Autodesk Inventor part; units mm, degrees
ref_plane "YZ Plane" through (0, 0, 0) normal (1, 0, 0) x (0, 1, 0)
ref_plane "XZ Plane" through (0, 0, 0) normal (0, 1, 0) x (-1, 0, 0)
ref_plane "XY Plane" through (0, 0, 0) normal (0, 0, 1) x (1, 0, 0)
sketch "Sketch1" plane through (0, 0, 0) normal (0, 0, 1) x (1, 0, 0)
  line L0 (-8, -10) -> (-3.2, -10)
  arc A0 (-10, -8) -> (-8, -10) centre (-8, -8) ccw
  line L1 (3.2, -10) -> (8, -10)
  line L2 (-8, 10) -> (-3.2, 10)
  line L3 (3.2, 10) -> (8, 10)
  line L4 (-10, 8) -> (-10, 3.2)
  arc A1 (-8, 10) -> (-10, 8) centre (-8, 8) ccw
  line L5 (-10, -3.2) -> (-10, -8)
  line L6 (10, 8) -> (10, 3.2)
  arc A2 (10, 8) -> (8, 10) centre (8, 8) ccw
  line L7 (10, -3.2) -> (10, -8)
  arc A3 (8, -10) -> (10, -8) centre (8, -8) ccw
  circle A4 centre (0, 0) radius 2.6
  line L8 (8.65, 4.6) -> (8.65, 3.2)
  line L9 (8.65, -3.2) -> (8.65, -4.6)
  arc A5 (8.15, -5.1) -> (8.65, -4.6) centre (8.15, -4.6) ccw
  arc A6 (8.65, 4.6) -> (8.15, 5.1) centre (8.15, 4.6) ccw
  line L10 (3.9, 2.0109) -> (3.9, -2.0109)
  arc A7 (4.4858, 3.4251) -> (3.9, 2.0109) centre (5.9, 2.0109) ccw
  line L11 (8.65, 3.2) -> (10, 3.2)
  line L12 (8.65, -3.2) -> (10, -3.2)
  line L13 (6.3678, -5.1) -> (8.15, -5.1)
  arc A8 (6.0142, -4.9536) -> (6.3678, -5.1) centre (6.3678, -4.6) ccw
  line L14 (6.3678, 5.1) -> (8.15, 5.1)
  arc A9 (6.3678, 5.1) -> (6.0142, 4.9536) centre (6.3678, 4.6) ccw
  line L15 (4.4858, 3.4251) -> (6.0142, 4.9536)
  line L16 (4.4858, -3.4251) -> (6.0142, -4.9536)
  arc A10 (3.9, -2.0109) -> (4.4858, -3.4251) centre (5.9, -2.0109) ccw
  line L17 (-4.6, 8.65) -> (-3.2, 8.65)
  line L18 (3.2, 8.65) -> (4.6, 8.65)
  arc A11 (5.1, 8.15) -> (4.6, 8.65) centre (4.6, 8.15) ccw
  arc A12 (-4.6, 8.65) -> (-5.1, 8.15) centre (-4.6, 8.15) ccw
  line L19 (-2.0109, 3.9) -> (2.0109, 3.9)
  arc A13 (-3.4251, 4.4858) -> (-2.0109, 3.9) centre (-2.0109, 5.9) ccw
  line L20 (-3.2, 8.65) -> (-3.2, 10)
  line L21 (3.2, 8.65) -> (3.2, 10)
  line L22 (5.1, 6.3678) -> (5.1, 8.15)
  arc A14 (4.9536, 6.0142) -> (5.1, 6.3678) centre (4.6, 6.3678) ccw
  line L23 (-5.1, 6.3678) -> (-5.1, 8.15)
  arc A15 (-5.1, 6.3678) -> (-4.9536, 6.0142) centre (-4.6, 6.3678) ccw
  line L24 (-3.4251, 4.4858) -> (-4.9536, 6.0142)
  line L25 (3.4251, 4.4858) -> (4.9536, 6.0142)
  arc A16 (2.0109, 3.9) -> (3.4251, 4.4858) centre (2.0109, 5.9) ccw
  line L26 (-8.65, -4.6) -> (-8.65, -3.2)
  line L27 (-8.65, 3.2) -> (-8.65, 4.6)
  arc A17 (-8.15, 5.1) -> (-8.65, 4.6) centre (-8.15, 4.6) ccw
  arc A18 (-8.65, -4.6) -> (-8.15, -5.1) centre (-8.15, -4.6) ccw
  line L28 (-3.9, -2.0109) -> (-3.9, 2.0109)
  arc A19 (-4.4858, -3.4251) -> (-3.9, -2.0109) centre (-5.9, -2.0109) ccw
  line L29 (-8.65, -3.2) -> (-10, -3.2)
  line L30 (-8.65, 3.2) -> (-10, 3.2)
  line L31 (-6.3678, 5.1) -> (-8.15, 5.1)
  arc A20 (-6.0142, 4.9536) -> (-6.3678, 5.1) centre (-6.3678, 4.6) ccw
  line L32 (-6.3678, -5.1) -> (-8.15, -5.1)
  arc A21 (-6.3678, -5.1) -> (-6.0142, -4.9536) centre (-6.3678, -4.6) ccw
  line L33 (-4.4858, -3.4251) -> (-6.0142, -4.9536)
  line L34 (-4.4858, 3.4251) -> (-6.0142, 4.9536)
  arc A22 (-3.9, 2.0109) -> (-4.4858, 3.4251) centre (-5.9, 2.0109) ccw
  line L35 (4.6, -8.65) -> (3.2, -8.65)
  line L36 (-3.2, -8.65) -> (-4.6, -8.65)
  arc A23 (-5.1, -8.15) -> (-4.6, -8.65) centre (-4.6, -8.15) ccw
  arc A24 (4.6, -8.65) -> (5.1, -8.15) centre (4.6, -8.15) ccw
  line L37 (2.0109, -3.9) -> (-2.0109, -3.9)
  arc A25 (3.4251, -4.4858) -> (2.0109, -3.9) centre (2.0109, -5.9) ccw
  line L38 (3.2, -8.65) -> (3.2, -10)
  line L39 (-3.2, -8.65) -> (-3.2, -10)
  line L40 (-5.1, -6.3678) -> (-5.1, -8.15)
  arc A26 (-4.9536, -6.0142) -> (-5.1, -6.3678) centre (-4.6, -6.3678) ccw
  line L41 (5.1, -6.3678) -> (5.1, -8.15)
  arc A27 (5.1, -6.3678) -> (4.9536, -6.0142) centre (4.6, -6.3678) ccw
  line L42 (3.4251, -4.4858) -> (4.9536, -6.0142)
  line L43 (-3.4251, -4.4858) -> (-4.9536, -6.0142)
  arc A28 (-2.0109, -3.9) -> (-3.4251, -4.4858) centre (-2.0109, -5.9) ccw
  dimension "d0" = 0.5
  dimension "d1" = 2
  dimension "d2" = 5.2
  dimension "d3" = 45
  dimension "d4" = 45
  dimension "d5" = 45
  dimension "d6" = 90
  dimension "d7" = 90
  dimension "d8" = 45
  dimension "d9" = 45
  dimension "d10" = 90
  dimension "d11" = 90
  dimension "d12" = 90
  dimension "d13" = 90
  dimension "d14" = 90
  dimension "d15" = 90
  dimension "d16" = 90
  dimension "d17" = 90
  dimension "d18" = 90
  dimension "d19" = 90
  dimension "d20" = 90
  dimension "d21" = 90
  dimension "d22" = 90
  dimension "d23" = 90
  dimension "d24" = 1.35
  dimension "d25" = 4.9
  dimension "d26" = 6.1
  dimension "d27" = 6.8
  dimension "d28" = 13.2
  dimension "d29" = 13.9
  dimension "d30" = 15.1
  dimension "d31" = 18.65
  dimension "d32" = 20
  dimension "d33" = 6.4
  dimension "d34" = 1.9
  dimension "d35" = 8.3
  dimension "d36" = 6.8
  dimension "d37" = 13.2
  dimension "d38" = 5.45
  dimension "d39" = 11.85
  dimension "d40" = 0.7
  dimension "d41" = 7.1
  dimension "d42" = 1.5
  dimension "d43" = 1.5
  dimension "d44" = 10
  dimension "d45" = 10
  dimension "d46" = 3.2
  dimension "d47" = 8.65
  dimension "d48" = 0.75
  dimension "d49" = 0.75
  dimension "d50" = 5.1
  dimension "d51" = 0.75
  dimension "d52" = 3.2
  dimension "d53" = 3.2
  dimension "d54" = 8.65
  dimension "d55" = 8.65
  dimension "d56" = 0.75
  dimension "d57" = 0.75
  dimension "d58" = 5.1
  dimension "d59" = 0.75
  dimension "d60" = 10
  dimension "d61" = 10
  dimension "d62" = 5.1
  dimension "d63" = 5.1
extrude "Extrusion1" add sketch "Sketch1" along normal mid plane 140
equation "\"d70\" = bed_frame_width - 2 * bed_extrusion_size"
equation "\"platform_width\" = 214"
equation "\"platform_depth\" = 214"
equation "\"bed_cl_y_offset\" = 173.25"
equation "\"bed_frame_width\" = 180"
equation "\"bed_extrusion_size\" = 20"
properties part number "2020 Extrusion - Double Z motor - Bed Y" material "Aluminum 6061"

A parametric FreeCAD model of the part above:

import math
import FreeCAD as App
import Part
import Sketcher
from FreeCAD import Vector

doc = App.newDocument("Part")
body = doc.addObject("PartDesign::Body", "Body")

# Sketch on XY plane
sketch1 = body.newObject("Sketcher::SketchObject", "Sketch")
sketch1.AttachmentSupport = (doc.getObject("XY_Plane"), [""])
sketch1.MapMode = "FlatFace"
sketch1.addGeometry([
    Part.ArcOfCircle(Part.Circle(Vector(-8, -8, 0), Vector(0, 0, 1), 2), math.radians(180), math.radians(270)),  # 0
    Part.LineSegment(Vector(-8, -10, 0), Vector(-3.2, -10, 0)),  # 1
    Part.LineSegment(Vector(-3.2, -10, 0), Vector(-3.2, -8.65, 0)),  # 2
    Part.LineSegment(Vector(-3.2, -8.65, 0), Vector(-4.6, -8.65, 0)),  # 3
    Part.ArcOfCircle(Part.Circle(Vector(-4.6, -8.15, 0), Vector(0, 0, 1), 0.5), math.radians(180), math.radians(270)),  # 4
    Part.LineSegment(Vector(-5.1, -8.15, 0), Vector(-5.1, -6.37, 0)),  # 5
    Part.ArcOfCircle(Part.Circle(Vector(-4.6, -6.37, 0), Vector(0, 0, 1), 0.5), math.radians(135), math.radians(180)),  # 6
    Part.LineSegment(Vector(-4.95, -6.01, 0), Vector(-3.43, -4.49, 0)),  # 7
    Part.ArcOfCircle(Part.Circle(Vector(-2.01, -5.9, 0), Vector(0, 0, 1), 2), math.radians(90), math.radians(135)),  # 8
    Part.LineSegment(Vector(-2.01, -3.9, 0), Vector(2.01, -3.9, 0)),  # 9
    Part.ArcOfCircle(Part.Circle(Vector(2.01, -5.9, 0), Vector(0, 0, 1), 2), math.radians(45), math.radians(90)),  # 10
    Part.LineSegment(Vector(3.43, -4.49, 0), Vector(4.95, -6.01, 0)),  # 11
    Part.ArcOfCircle(Part.Circle(Vector(4.6, -6.37, 0), Vector(0, 0, 1), 0.5), math.radians(0), math.radians(45)),  # 12
    Part.LineSegment(Vector(5.1, -6.37, 0), Vector(5.1, -8.15, 0)),  # 13
    Part.ArcOfCircle(Part.Circle(Vector(4.6, -8.15, 0), Vector(0, 0, 1), 0.5), math.radians(-90), math.radians(0)),  # 14
    Part.LineSegment(Vector(4.6, -8.65, 0), Vector(3.2, -8.65, 0)),  # 15
    Part.LineSegment(Vector(3.2, -8.65, 0), Vector(3.2, -10, 0)),  # 16
    Part.LineSegment(Vector(3.2, -10, 0), Vector(8, -10, 0)),  # 17
    Part.ArcOfCircle(Part.Circle(Vector(8, -8, 0), Vector(0, 0, 1), 2), math.radians(-90), math.radians(0)),  # 18
    Part.LineSegment(Vector(10, -8, 0), Vector(10, -3.2, 0)),  # 19
    Part.LineSegment(Vector(10, -3.2, 0), Vector(8.65, -3.2, 0)),  # 20
    Part.LineSegment(Vector(8.65, -3.2, 0), Vector(8.65, -4.6, 0)),  # 21
    Part.ArcOfCircle(Part.Circle(Vector(8.15, -4.6, 0), Vector(0, 0, 1), 0.5), math.radians(-90), math.radians(0)),  # 22
    Part.LineSegment(Vector(8.15, -5.1, 0), Vector(6.37, -5.1, 0)),  # 23
    Part.ArcOfCircle(Part.Circle(Vector(6.37, -4.6, 0), Vector(0, 0, 1), 0.5), math.radians(-135), math.radians(-90)),  # 24
    Part.LineSegment(Vector(6.01, -4.95, 0), Vector(4.49, -3.43, 0)),  # 25
    Part.ArcOfCircle(Part.Circle(Vector(5.9, -2.01, 0), Vector(0, 0, 1), 2), math.radians(180), math.radians(225)),  # 26
    Part.LineSegment(Vector(3.9, -2.01, 0), Vector(3.9, 2.01, 0)),  # 27
    Part.ArcOfCircle(Part.Circle(Vector(5.9, 2.01, 0), Vector(0, 0, 1), 2), math.radians(135), math.radians(180)),  # 28
    Part.LineSegment(Vector(4.49, 3.43, 0), Vector(6.01, 4.95, 0)),  # 29
    Part.ArcOfCircle(Part.Circle(Vector(6.37, 4.6, 0), Vector(0, 0, 1), 0.5), math.radians(90), math.radians(135)),  # 30
    Part.LineSegment(Vector(6.37, 5.1, 0), Vector(8.15, 5.1, 0)),  # 31
    Part.ArcOfCircle(Part.Circle(Vector(8.15, 4.6, 0), Vector(0, 0, 1), 0.5), math.radians(0), math.radians(90)),  # 32
    Part.LineSegment(Vector(8.65, 4.6, 0), Vector(8.65, 3.2, 0)),  # 33
    Part.LineSegment(Vector(8.65, 3.2, 0), Vector(10, 3.2, 0)),  # 34
    Part.LineSegment(Vector(10, 3.2, 0), Vector(10, 8, 0)),  # 35
    Part.ArcOfCircle(Part.Circle(Vector(8, 8, 0), Vector(0, 0, 1), 2), math.radians(0), math.radians(90)),  # 36
    Part.LineSegment(Vector(8, 10, 0), Vector(3.2, 10, 0)),  # 37
    Part.LineSegment(Vector(3.2, 10, 0), Vector(3.2, 8.65, 0)),  # 38
    Part.LineSegment(Vector(3.2, 8.65, 0), Vector(4.6, 8.65, 0)),  # 39
    Part.ArcOfCircle(Part.Circle(Vector(4.6, 8.15, 0), Vector(0, 0, 1), 0.5), math.radians(0), math.radians(90)),  # 40
    Part.LineSegment(Vector(5.1, 8.15, 0), Vector(5.1, 6.37, 0)),  # 41
    Part.ArcOfCircle(Part.Circle(Vector(4.6, 6.37, 0), Vector(0, 0, 1), 0.5), math.radians(-45), math.radians(0)),  # 42
    Part.LineSegment(Vector(4.95, 6.01, 0), Vector(3.43, 4.49, 0)),  # 43
    Part.ArcOfCircle(Part.Circle(Vector(2.01, 5.9, 0), Vector(0, 0, 1), 2), math.radians(-90), math.radians(-45)),  # 44
    Part.LineSegment(Vector(2.01, 3.9, 0), Vector(-2.01, 3.9, 0)),  # 45
    Part.ArcOfCircle(Part.Circle(Vector(-2.01, 5.9, 0), Vector(0, 0, 1), 2), math.radians(-135), math.radians(-90)),  # 46
    Part.LineSegment(Vector(-3.43, 4.49, 0), Vector(-4.95, 6.01, 0)),  # 47
    Part.ArcOfCircle(Part.Circle(Vector(-4.6, 6.37, 0), Vector(0, 0, 1), 0.5), math.radians(180), math.radians(225)),  # 48
    Part.LineSegment(Vector(-5.1, 6.37, 0), Vector(-5.1, 8.15, 0)),  # 49
    Part.ArcOfCircle(Part.Circle(Vector(-4.6, 8.15, 0), Vector(0, 0, 1), 0.5), math.radians(90), math.radians(180)),  # 50
    Part.LineSegment(Vector(-4.6, 8.65, 0), Vector(-3.2, 8.65, 0)),  # 51
    Part.LineSegment(Vector(-3.2, 8.65, 0), Vector(-3.2, 10, 0)),  # 52
    Part.LineSegment(Vector(-3.2, 10, 0), Vector(-8, 10, 0)),  # 53
    Part.ArcOfCircle(Part.Circle(Vector(-8, 8, 0), Vector(0, 0, 1), 2), math.radians(90), math.radians(180)),  # 54
    Part.LineSegment(Vector(-10, 8, 0), Vector(-10, 3.2, 0)),  # 55
    Part.LineSegment(Vector(-10, 3.2, 0), Vector(-8.65, 3.2, 0)),  # 56
    Part.LineSegment(Vector(-8.65, 3.2, 0), Vector(-8.65, 4.6, 0)),  # 57
    Part.ArcOfCircle(Part.Circle(Vector(-8.15, 4.6, 0), Vector(0, 0, 1), 0.5), math.radians(90), math.radians(180)),  # 58
    Part.LineSegment(Vector(-8.15, 5.1, 0), Vector(-6.37, 5.1, 0)),  # 59
    Part.ArcOfCircle(Part.Circle(Vector(-6.37, 4.6, 0), Vector(0, 0, 1), 0.5), math.radians(45), math.radians(90)),  # 60
    Part.LineSegment(Vector(-6.01, 4.95, 0), Vector(-4.49, 3.43, 0)),  # 61
    Part.ArcOfCircle(Part.Circle(Vector(-5.9, 2.01, 0), Vector(0, 0, 1), 2), math.radians(0), math.radians(45)),  # 62
    Part.LineSegment(Vector(-3.9, 2.01, 0), Vector(-3.9, -2.01, 0)),  # 63
    Part.ArcOfCircle(Part.Circle(Vector(-5.9, -2.01, 0), Vector(0, 0, 1), 2), math.radians(-45), math.radians(0)),  # 64
    Part.LineSegment(Vector(-4.49, -3.43, 0), Vector(-6.01, -4.95, 0)),  # 65
    Part.ArcOfCircle(Part.Circle(Vector(-6.37, -4.6, 0), Vector(0, 0, 1), 0.5), math.radians(-90), math.radians(-45)),  # 66
    Part.LineSegment(Vector(-6.37, -5.1, 0), Vector(-8.15, -5.1, 0)),  # 67
    Part.ArcOfCircle(Part.Circle(Vector(-8.15, -4.6, 0), Vector(0, 0, 1), 0.5), math.radians(180), math.radians(270)),  # 68
    Part.LineSegment(Vector(-8.65, -4.6, 0), Vector(-8.65, -3.2, 0)),  # 69
    Part.LineSegment(Vector(-8.65, -3.2, 0), Vector(-10, -3.2, 0)),  # 70
    Part.LineSegment(Vector(-10, -3.2, 0), Vector(-10, -8, 0)),  # 71
    Part.Circle(Vector(0, 0, 0), Vector(0, 0, 1), 2.6),  # 72
], False)
sketch1.addConstraint([
    Sketcher.Constraint("Tangent", 0, 2, 1, 1),
    Sketcher.Constraint("Coincident", 1, 2, 2, 1),
    Sketcher.Constraint("Coincident", 2, 2, 3, 1),
    Sketcher.Constraint("Tangent", 3, 2, 4, 2),
    Sketcher.Constraint("Tangent", 4, 1, 5, 1),
    Sketcher.Constraint("Tangent", 5, 2, 6, 2),
    Sketcher.Constraint("Tangent", 6, 1, 7, 1),
    Sketcher.Constraint("Tangent", 7, 2, 8, 2),
    Sketcher.Constraint("Tangent", 8, 1, 9, 1),
    Sketcher.Constraint("Tangent", 9, 2, 10, 2),
    Sketcher.Constraint("Tangent", 10, 1, 11, 1),
    Sketcher.Constraint("Tangent", 11, 2, 12, 2),
    Sketcher.Constraint("Tangent", 12, 1, 13, 1),
    Sketcher.Constraint("Tangent", 13, 2, 14, 2),
    Sketcher.Constraint("Tangent", 14, 1, 15, 1),
    Sketcher.Constraint("Coincident", 15, 2, 16, 1),
    Sketcher.Constraint("Coincident", 16, 2, 17, 1),
    Sketcher.Constraint("Tangent", 17, 2, 18, 1),
    Sketcher.Constraint("Tangent", 18, 2, 19, 1),
    Sketcher.Constraint("Coincident", 19, 2, 20, 1),
    Sketcher.Constraint("Coincident", 20, 2, 21, 1),
    Sketcher.Constraint("Tangent", 21, 2, 22, 2),
    Sketcher.Constraint("Tangent", 22, 1, 23, 1),
    Sketcher.Constraint("Tangent", 23, 2, 24, 2),
    Sketcher.Constraint("Tangent", 24, 1, 25, 1),
    Sketcher.Constraint("Tangent", 25, 2, 26, 2),
    Sketcher.Constraint("Tangent", 26, 1, 27, 1),
    Sketcher.Constraint("Tangent", 27, 2, 28, 2),
    Sketcher.Constraint("Tangent", 28, 1, 29, 1),
    Sketcher.Constraint("Tangent", 29, 2, 30, 2),
    Sketcher.Constraint("Tangent", 30, 1, 31, 1),
    Sketcher.Constraint("Tangent", 31, 2, 32, 2),
    Sketcher.Constraint("Tangent", 32, 1, 33, 1),
    Sketcher.Constraint("Coincident", 33, 2, 34, 1),
    Sketcher.Constraint("Coincident", 34, 2, 35, 1),
    Sketcher.Constraint("Tangent", 35, 2, 36, 1),
    Sketcher.Constraint("Tangent", 36, 2, 37, 1),
    Sketcher.Constraint("Coincident", 37, 2, 38, 1),
    Sketcher.Constraint("Coincident", 38, 2, 39, 1),
    Sketcher.Constraint("Tangent", 39, 2, 40, 2),
    Sketcher.Constraint("Tangent", 40, 1, 41, 1),
    Sketcher.Constraint("Tangent", 41, 2, 42, 2),
    Sketcher.Constraint("Tangent", 42, 1, 43, 1),
    Sketcher.Constraint("Tangent", 43, 2, 44, 2),
    Sketcher.Constraint("Tangent", 44, 1, 45, 1),
    Sketcher.Constraint("Tangent", 45, 2, 46, 2),
    Sketcher.Constraint("Tangent", 46, 1, 47, 1),
    Sketcher.Constraint("Tangent", 47, 2, 48, 2),
    Sketcher.Constraint("Tangent", 48, 1, 49, 1),
    Sketcher.Constraint("Tangent", 49, 2, 50, 2),
    Sketcher.Constraint("Tangent", 50, 1, 51, 1),
    Sketcher.Constraint("Coincident", 51, 2, 52, 1),
    Sketcher.Constraint("Coincident", 52, 2, 53, 1),
    Sketcher.Constraint("Tangent", 53, 2, 54, 1),
    Sketcher.Constraint("Tangent", 54, 2, 55, 1),
    Sketcher.Constraint("Coincident", 55, 2, 56, 1),
    Sketcher.Constraint("Coincident", 56, 2, 57, 1),
    Sketcher.Constraint("Tangent", 57, 2, 58, 2),
    Sketcher.Constraint("Tangent", 58, 1, 59, 1),
    Sketcher.Constraint("Tangent", 59, 2, 60, 2),
    Sketcher.Constraint("Tangent", 60, 1, 61, 1),
    Sketcher.Constraint("Tangent", 61, 2, 62, 2),
    Sketcher.Constraint("Tangent", 62, 1, 63, 1),
    Sketcher.Constraint("Tangent", 63, 2, 64, 2),
    Sketcher.Constraint("Tangent", 64, 1, 65, 1),
    Sketcher.Constraint("Tangent", 65, 2, 66, 2),
    Sketcher.Constraint("Tangent", 66, 1, 67, 1),
    Sketcher.Constraint("Tangent", 67, 2, 68, 2),
    Sketcher.Constraint("Tangent", 68, 1, 69, 1),
    Sketcher.Constraint("Coincident", 69, 2, 70, 1),
    Sketcher.Constraint("Coincident", 70, 2, 71, 1),
    Sketcher.Constraint("Tangent", 71, 2, 0, 1),
    Sketcher.Constraint("Horizontal", 1),
    Sketcher.Constraint("Vertical", 2),
    Sketcher.Constraint("Horizontal", 3),
    Sketcher.Constraint("Vertical", 5),
    Sketcher.Constraint("Horizontal", 9),
    Sketcher.Constraint("Vertical", 13),
    Sketcher.Constraint("Horizontal", 15),
    Sketcher.Constraint("Vertical", 16),
    Sketcher.Constraint("Horizontal", 17),
    Sketcher.Constraint("Vertical", 19),
    Sketcher.Constraint("Horizontal", 20),
    Sketcher.Constraint("Vertical", 21),
    Sketcher.Constraint("Horizontal", 23),
    Sketcher.Constraint("Vertical", 27),
    Sketcher.Constraint("Horizontal", 31),
    Sketcher.Constraint("Vertical", 33),
    Sketcher.Constraint("Horizontal", 34),
    Sketcher.Constraint("Vertical", 35),
    Sketcher.Constraint("Horizontal", 37),
    Sketcher.Constraint("Vertical", 38),
    Sketcher.Constraint("Horizontal", 39),
    Sketcher.Constraint("Vertical", 41),
    Sketcher.Constraint("Horizontal", 45),
    Sketcher.Constraint("Vertical", 49),
    Sketcher.Constraint("Horizontal", 51),
    Sketcher.Constraint("Vertical", 52),
    Sketcher.Constraint("Horizontal", 53),
    Sketcher.Constraint("Vertical", 55),
    Sketcher.Constraint("Horizontal", 56),
    Sketcher.Constraint("Vertical", 57),
    Sketcher.Constraint("Horizontal", 59),
    Sketcher.Constraint("Vertical", 63),
    Sketcher.Constraint("Horizontal", 67),
    Sketcher.Constraint("Vertical", 69),
    Sketcher.Constraint("Horizontal", 70),
    Sketcher.Constraint("Vertical", 71),
    Sketcher.Constraint("Coincident", 72, 3, -1, 1),
    Sketcher.Constraint("Equal", 4, 6),
    Sketcher.Constraint("Equal", 0, 8),
    Sketcher.Constraint("Equal", 8, 10),
    Sketcher.Constraint("Equal", 6, 12),
    Sketcher.Constraint("Equal", 12, 14),
    Sketcher.Constraint("Equal", 10, 18),
    Sketcher.Constraint("Equal", 14, 22),
    Sketcher.Constraint("Equal", 22, 24),
    Sketcher.Constraint("Equal", 18, 26),
    Sketcher.Constraint("Equal", 26, 28),
    Sketcher.Constraint("Equal", 24, 30),
    Sketcher.Constraint("Equal", 30, 32),
    Sketcher.Constraint("Equal", 28, 36),
    Sketcher.Constraint("Equal", 32, 40),
    Sketcher.Constraint("Equal", 40, 42),
    Sketcher.Constraint("Equal", 36, 44),
    Sketcher.Constraint("Equal", 44, 46),
    Sketcher.Constraint("Equal", 42, 48),
    Sketcher.Constraint("Equal", 48, 50),
    Sketcher.Constraint("Equal", 46, 54),
    Sketcher.Constraint("Equal", 50, 58),
    Sketcher.Constraint("Equal", 58, 60),
    Sketcher.Constraint("Equal", 54, 62),
    Sketcher.Constraint("Equal", 62, 64),
    Sketcher.Constraint("Equal", 60, 66),
    Sketcher.Constraint("Equal", 66, 68),
    Sketcher.Constraint("Symmetric", 0, 3, 36, 3, -1, 1),
    Sketcher.Constraint("Symmetric", 4, 3, 40, 3, -1, 1),
    Sketcher.Constraint("Symmetric", 8, 3, 44, 3, -1, 1),
    Sketcher.Constraint("Symmetric", 12, 3, 48, 3, -1, 1),
    Sketcher.Constraint("Symmetric", 18, 3, 54, 3, -1, 1),
    Sketcher.Constraint("Symmetric", 22, 3, 58, 3, -1, 1),
    Sketcher.Constraint("Symmetric", 26, 3, 62, 3, -1, 1),
    Sketcher.Constraint("Symmetric", 30, 3, 66, 3, -1, 1),
    Sketcher.Constraint("Symmetric", 15, 2, 51, 2, -1, 1),
    Sketcher.Constraint("Symmetric", 33, 2, 69, 2, -1, 1),
    Sketcher.Constraint("Symmetric", 6, 3, 12, 3, -2),
    Sketcher.Constraint("Symmetric", 0, 3, 18, 3, -2),
    Sketcher.Constraint("Symmetric", 32, 3, 58, 3, -2),
    Sketcher.Constraint("Symmetric", 2, 2, 15, 2, -2),
    Sketcher.Constraint("Symmetric", 43, 2, 46, 1, -2),
    Sketcher.Constraint("Symmetric", 29, 2, 60, 1, -2),
    Sketcher.Constraint("Symmetric", 25, 2, 64, 1, -2),
    Sketcher.Constraint("Perpendicular", 7, 11),
    Sketcher.Constraint("Parallel", 11, 25),
    Sketcher.Constraint("Perpendicular", 25, 29),
    Sketcher.Constraint("Horizontal", 34, 2, 55, 2),
    Sketcher.Constraint("Horizontal", 20, 2, 69, 2),
    Sketcher.Constraint("Vertical", 16, 2, 37, 2),
    Sketcher.Constraint("Equal", 70, 2),
    Sketcher.Constraint("Equal", 67, 5),
    Sketcher.Constraint("Equal", 53, 19),
    Sketcher.Constraint("Equal", 51, 21),
    Sketcher.Constraint("Equal", 45, 27),
    Sketcher.Constraint("Equal", 11, 25),
    Sketcher.Constraint("Radius", 0, 2.0),
    Sketcher.Constraint("Diameter", 72, 5.2),
    Sketcher.Constraint("Radius", 4, 0.5),
    Sketcher.Constraint("DistanceY", 0, 2, -1, 1, 10.0),
    Sketcher.Constraint("DistanceX", 20, 2, 20, 1, 1.35),
    Sketcher.Constraint("DistanceX", 1, 2, -1, 1, 3.2),
    Sketcher.Constraint("DistanceX", 4, 1, -1, 1, 5.1),
    Sketcher.Constraint("DistanceY", 8, 3, -1, 1, 5.9),
    Sketcher.Constraint("DistanceX", 9, 1, 9, 2, 4.0218),
])
pad1 = body.newObject("PartDesign::Pad", "Pad")
pad1.Profile = sketch1
pad1.Length = 140
pad1.Midplane = True

doc.recompute()
